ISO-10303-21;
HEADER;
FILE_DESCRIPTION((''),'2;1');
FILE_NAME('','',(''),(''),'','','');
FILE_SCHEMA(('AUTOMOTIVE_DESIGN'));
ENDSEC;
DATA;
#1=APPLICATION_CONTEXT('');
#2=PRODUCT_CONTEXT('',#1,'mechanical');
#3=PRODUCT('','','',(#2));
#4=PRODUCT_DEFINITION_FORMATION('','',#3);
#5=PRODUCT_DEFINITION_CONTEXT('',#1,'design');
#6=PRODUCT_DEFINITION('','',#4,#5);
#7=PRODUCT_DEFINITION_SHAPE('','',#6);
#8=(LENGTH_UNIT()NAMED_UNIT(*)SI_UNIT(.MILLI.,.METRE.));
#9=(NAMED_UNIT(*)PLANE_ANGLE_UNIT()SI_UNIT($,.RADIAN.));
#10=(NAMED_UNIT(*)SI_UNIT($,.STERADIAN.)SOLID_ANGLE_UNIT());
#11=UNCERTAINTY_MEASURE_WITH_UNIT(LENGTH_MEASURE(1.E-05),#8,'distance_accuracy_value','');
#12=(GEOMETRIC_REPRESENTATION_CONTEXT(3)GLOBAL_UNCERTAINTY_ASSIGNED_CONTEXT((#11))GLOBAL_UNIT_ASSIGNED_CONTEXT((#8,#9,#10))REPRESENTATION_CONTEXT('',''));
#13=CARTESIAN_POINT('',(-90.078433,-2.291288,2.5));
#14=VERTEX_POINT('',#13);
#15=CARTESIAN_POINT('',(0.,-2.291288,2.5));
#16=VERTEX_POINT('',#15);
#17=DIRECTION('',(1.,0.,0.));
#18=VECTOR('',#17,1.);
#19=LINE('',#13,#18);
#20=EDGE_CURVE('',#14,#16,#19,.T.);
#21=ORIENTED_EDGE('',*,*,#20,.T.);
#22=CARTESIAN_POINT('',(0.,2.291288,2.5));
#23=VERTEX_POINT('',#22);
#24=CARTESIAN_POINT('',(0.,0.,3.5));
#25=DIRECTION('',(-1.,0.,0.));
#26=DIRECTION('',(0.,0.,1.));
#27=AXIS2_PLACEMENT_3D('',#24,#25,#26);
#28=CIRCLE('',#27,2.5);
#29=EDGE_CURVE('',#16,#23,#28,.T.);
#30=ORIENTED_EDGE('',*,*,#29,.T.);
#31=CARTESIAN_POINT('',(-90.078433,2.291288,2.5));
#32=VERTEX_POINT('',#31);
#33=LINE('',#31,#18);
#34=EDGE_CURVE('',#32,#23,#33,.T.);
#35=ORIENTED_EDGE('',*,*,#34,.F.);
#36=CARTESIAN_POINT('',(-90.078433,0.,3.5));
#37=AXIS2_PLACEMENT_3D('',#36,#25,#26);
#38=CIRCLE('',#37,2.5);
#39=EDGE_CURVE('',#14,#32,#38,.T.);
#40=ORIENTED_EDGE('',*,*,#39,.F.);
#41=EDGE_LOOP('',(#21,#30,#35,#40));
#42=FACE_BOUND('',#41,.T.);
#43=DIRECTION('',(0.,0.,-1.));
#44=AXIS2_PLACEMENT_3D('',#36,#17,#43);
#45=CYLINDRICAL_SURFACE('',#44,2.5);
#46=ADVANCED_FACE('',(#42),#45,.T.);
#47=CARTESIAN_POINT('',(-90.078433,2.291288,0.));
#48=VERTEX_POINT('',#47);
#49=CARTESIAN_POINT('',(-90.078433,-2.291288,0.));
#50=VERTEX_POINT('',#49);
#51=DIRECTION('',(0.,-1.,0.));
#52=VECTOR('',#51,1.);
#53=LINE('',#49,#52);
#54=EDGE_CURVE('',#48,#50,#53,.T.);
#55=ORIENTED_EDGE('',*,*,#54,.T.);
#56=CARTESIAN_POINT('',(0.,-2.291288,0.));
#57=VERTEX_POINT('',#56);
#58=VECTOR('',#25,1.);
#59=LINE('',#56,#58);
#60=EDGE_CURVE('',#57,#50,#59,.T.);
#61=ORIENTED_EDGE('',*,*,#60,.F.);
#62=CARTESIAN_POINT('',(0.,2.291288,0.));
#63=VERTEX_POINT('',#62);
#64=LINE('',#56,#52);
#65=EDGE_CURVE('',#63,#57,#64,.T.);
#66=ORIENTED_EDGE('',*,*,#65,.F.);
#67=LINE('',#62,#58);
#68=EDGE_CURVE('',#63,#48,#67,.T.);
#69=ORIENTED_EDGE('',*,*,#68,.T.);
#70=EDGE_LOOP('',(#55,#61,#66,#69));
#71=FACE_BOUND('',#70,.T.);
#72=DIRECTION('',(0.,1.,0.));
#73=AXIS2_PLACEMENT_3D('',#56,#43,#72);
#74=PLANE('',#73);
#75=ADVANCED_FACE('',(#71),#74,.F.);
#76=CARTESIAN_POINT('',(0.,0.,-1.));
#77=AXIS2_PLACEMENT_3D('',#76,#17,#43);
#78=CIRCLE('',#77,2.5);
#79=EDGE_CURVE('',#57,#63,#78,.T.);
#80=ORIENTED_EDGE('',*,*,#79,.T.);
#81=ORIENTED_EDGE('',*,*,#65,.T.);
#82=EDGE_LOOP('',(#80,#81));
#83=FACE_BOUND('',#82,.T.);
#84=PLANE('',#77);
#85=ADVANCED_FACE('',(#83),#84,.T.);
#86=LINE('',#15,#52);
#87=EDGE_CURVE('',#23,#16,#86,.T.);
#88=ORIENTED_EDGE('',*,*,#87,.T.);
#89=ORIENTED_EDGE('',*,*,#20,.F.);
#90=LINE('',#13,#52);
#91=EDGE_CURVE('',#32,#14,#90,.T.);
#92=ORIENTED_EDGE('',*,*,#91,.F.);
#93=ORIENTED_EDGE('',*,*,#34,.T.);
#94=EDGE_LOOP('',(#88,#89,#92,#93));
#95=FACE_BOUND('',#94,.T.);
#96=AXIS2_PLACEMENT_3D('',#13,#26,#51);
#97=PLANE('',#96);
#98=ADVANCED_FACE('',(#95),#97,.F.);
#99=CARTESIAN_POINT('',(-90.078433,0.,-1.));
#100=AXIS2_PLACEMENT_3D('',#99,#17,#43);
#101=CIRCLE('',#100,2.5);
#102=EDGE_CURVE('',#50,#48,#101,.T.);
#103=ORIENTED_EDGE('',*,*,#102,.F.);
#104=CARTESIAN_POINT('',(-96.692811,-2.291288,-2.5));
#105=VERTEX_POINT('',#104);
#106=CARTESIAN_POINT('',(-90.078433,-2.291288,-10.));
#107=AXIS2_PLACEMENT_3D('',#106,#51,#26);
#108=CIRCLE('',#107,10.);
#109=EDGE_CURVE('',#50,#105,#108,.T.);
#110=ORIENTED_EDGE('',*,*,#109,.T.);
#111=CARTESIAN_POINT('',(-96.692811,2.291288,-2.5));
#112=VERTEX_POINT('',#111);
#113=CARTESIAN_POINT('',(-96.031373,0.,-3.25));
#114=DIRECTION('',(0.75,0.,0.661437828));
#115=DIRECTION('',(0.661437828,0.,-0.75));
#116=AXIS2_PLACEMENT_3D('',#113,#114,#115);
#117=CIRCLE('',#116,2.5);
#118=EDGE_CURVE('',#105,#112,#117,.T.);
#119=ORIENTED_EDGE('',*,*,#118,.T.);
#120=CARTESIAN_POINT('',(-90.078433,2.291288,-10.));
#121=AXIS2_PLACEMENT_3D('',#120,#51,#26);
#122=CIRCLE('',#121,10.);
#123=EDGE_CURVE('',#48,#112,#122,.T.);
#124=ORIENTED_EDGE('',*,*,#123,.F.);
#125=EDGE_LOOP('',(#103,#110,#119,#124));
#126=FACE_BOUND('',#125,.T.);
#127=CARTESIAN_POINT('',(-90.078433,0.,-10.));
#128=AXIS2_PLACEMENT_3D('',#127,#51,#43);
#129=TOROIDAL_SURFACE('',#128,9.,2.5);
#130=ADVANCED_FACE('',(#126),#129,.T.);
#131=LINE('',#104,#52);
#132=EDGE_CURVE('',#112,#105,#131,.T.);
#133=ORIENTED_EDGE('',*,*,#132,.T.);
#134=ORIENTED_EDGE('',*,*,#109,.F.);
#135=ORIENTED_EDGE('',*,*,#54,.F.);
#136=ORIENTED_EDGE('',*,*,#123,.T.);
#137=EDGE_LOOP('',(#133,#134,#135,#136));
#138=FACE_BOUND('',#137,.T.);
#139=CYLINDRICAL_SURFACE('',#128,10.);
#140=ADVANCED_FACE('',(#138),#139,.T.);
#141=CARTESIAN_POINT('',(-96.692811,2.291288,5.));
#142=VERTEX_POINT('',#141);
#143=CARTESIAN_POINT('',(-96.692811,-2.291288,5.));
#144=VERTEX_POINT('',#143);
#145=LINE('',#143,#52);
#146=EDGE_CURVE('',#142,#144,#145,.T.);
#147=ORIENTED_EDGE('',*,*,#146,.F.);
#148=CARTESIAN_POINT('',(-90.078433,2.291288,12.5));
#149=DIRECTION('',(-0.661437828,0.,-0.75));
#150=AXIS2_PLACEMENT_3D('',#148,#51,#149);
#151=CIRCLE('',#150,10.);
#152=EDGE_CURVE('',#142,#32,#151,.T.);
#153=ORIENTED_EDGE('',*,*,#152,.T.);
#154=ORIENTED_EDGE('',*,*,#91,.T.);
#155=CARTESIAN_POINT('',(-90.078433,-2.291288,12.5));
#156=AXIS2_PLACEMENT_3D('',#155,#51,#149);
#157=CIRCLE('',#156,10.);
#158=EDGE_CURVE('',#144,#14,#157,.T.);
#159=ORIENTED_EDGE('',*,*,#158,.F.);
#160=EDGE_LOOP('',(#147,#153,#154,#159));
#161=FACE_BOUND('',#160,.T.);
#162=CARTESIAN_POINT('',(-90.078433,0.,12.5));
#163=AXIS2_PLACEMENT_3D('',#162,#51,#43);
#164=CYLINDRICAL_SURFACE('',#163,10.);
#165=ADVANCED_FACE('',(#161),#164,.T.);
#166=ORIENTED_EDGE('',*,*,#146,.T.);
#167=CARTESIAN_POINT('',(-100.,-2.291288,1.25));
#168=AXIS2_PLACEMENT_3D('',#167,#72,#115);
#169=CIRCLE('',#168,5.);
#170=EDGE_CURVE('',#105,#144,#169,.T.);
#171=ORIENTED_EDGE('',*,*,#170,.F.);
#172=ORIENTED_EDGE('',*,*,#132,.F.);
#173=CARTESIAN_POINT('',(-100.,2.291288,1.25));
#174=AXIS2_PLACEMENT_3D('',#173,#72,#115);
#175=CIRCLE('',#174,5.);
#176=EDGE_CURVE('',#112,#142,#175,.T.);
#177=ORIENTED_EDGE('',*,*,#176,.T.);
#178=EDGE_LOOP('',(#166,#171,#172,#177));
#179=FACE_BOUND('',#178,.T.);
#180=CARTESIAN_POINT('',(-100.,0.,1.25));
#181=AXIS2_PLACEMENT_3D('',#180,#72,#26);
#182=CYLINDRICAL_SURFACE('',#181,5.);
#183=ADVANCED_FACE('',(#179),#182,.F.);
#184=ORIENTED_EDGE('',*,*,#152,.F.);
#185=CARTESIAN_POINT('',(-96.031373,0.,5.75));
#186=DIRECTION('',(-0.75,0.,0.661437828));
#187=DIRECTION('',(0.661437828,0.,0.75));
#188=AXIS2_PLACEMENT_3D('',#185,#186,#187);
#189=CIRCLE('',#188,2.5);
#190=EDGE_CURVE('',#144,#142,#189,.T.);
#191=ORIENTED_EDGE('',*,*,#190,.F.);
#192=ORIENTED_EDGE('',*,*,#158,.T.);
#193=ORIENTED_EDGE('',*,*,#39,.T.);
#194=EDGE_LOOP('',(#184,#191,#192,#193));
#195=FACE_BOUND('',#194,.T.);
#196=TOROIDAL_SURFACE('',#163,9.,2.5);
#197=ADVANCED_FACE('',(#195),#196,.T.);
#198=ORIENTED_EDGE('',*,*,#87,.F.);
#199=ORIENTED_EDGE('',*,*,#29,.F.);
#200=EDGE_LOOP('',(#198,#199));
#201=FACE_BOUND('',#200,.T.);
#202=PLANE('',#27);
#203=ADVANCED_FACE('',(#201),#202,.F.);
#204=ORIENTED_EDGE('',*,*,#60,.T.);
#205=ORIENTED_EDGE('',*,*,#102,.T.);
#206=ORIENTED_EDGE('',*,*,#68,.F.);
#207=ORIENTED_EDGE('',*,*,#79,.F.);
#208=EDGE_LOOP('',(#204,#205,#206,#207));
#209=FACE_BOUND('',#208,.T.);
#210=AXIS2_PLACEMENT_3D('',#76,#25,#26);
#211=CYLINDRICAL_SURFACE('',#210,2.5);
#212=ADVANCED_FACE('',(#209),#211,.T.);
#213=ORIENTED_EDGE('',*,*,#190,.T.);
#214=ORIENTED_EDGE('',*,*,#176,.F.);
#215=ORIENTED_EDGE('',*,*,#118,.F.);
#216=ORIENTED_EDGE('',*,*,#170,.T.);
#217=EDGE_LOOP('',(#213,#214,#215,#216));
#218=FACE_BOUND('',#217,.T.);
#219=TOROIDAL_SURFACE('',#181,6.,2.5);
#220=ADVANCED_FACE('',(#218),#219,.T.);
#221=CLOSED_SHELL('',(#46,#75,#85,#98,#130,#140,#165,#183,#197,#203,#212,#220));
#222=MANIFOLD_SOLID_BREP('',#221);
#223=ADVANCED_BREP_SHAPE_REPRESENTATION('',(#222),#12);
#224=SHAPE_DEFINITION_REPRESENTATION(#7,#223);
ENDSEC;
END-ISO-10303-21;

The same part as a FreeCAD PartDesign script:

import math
import FreeCAD as App
import Part
import Sketcher

V = App.Vector

doc = App.newDocument("Part")
body = doc.addObject("PartDesign::Body", "Body")

# Sketch on YZ plane
sketch1 = body.newObject("Sketcher::SketchObject", "Sketch")
sketch1.AttachmentSupport = (doc.getObject("YZ_Plane"), [""])
sketch1.MapMode = "FlatFace"
sketch1.addGeometry([
    Part.LineSegment(V(2.291288, 0, 0), V(-2.291288, 0, 0)),
    Part.ArcOfCircle(Part.Circle(V(0, -1, 0), V(0, 0, 1), 2.5), math.radians(156.421822), math.radians(383.578178)),
], False)
sketch1.addConstraint([
    Sketcher.Constraint("Coincident", 0, 1, 1, 2),
    Sketcher.Constraint("Coincident", 1, 1, 0, 2),
    Sketcher.Constraint("Horizontal", 0),
    Sketcher.Constraint("Symmetric", 0, 1, 1, 1, -1, 1),
    Sketcher.Constraint("Radius", 1, 2.5),
    Sketcher.Constraint("DistanceY", 1, 3, -1, 1, 1.0),
])

# Sketch on XZ plane
sketch2 = body.newObject("Sketcher::SketchObject", "Sketch001")
sketch2.AttachmentSupport = (doc.getObject("XZ_Plane"), [""])
sketch2.MapMode = "FlatFace"
sketch2.addGeometry([
    Part.LineSegment(V(0, 0, 0), V(-90.078433, 0, 0)),  # 0
    Part.ArcOfCircle(Part.Circle(V(-90.078433, -10, 0), V(0, 0, 1), 10), math.radians(90), math.radians(131.409622)),  # 1
    Part.ArcOfCircle(Part.Circle(V(-100, 1.25, 0), V(0, 0, 1), 5), math.radians(48.590378), math.radians(311.409622)),  # 2
    Part.ArcOfCircle(Part.Circle(V(-90.078433, 12.5, 0), V(0, 0, 1), 10), math.radians(-131.409622), math.radians(-90)),  # 3
    Part.LineSegment(V(-90.078433, 2.5, 0), V(0, 2.5, 0)),  # 4
], False)
sketch2.addConstraint([
    Sketcher.Constraint("Tangent", 0, 2, 1, 1),
    Sketcher.Constraint("Tangent", 1, 2, 2, 2),
    Sketcher.Constraint("Tangent", 2, 1, 3, 1),
    Sketcher.Constraint("Tangent", 3, 2, 4, 1),
    Sketcher.Constraint("Horizontal", 0),
    Sketcher.Constraint("Horizontal", 4),
    Sketcher.Constraint("Coincident", 0, 1, -1, 1),
    Sketcher.Constraint("Equal", 1, 3),
    Sketcher.Constraint("PointOnObject", 4, 2, -2),
    Sketcher.Constraint("Vertical", 1, 3, 3, 3),
    Sketcher.Constraint("Radius", 1, 10.0),
    Sketcher.Constraint("Radius", 2, 5.0),
    Sketcher.Constraint("DistanceX", 2, 3, -1, 1, 100.0),
    Sketcher.Constraint("DistanceY", -1, 1, 2, 1, 5.0),
])
doc.recompute()

additivepipe = body.newObject("PartDesign::AdditivePipe", "AdditivePipe")
additivepipe.Profile = sketch1
additivepipe.Spine = (sketch2, ["Edge1", "Edge2", "Edge3", "Edge4", "Edge5"])

doc.recompute()
